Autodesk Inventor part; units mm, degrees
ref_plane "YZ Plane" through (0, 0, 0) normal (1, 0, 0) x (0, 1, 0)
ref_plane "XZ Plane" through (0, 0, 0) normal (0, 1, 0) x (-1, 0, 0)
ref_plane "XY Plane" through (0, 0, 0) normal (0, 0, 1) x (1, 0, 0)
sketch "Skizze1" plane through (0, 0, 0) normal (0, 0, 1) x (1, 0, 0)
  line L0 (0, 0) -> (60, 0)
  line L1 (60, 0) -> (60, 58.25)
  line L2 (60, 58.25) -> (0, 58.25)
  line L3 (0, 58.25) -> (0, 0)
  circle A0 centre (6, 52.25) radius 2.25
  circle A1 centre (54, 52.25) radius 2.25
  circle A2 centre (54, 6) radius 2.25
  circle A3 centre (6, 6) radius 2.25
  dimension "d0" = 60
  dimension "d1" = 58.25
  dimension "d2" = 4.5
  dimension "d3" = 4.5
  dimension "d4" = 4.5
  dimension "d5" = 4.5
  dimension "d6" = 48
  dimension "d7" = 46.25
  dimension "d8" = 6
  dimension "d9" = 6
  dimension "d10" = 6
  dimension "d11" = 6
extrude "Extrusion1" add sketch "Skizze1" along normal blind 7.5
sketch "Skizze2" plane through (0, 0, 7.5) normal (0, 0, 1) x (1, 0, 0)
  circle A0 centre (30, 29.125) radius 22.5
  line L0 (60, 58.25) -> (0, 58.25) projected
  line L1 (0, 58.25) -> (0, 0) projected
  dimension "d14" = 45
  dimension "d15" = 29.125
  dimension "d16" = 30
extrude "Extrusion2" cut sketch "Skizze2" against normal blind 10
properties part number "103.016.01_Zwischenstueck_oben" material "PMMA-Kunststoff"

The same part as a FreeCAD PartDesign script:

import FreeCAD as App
import Part
import Sketcher

V = App.Vector
Q = App.Units.Quantity

doc = App.newDocument("Part")
body = doc.addObject("PartDesign::Body", "Body")

# Sketch on XY plane
sketch1 = body.newObject("Sketcher::SketchObject", "Sketch")
sketch1.AttachmentSupport = (doc.getObject("XY_Plane"), [""])
sketch1.MapMode = "FlatFace"
sketch1.addGeometry(Part.LineSegment(V(0, 58.2, 0), V(0, 0, 0)), False)
sketch1.addGeometry(Part.LineSegment(V(0, 0, 0), V(60, 0, 0)), False)
sketch1.addGeometry(Part.LineSegment(V(60, 0, 0), V(60, 58.2, 0)), False)
sketch1.addGeometry(Part.LineSegment(V(60, 58.2, 0), V(0, 58.2, 0)), False)
sketch1.addGeometry(Part.Circle(V(6, 6, 0), V(0, 0, 1), 2.2), False)
sketch1.addGeometry(Part.Circle(V(54, 6, 0), V(0, 0, 1), 2.2), False)
sketch1.addGeometry(Part.Circle(V(6, 52.2, 0), V(0, 0, 1), 2.2), False)
sketch1.addGeometry(Part.Circle(V(54, 52.2, 0), V(0, 0, 1), 2.2), False)
sketch1.addConstraint(Sketcher.Constraint("Coincident", 0, 2, 1, 1))
sketch1.addConstraint(Sketcher.Constraint("Coincident", 1, 2, 2, 1))
sketch1.addConstraint(Sketcher.Constraint("Coincident", 2, 2, 3, 1))
sketch1.addConstraint(Sketcher.Constraint("Coincident", 3, 2, 0, 1))
sketch1.addConstraint(Sketcher.Constraint("Vertical", 0))
sketch1.addConstraint(Sketcher.Constraint("Horizontal", 1))
sketch1.addConstraint(Sketcher.Constraint("Vertical", 2))
sketch1.addConstraint(Sketcher.Constraint("Horizontal", 3))
sketch1.addConstraint(Sketcher.Constraint("Coincident", 0, 2, -1, 1))
sketch1.addConstraint(Sketcher.Constraint("Equal", 4, 5))
sketch1.addConstraint(Sketcher.Constraint("Equal", 5, 6))
sketch1.addConstraint(Sketcher.Constraint("Equal", 6, 7))
sketch1.addConstraint(Sketcher.Constraint("Horizontal", 4, 3, 5, 3))
sketch1.addConstraint(Sketcher.Constraint("Horizontal", 6, 3, 7, 3))
sketch1.addConstraint(Sketcher.Constraint("Vertical", 4, 3, 6, 3))
sketch1.addConstraint(Sketcher.Constraint("Vertical", 5, 3, 7, 3))
sketch1.addConstraint(Sketcher.Constraint("Diameter", 4, Q("4.5 mm")))
sketch1.addConstraint(Sketcher.Constraint("DistanceX", 1, 1, 1, 2, Q("60 mm")))
sketch1.addConstraint(Sketcher.Constraint("DistanceX", -1, 1, 4, 3, Q("6 mm")))
sketch1.addConstraint(Sketcher.Constraint("DistanceY", -1, 1, 4, 3, Q("6 mm")))
sketch1.addConstraint(Sketcher.Constraint("DistanceX", 4, 3, 5, 3, Q("48 mm")))
sketch1.addConstraint(Sketcher.Constraint("DistanceY", 7, 3, 2, 2, Q("6 mm")))
sketch1.addConstraint(Sketcher.Constraint("DistanceY", 0, 2, 0, 1, Q("58.25 mm")))
pad1 = body.newObject("PartDesign::Pad", "Pad")
pad1.Profile = sketch1
pad1.Length = 7.5

# Sketch on XY plane
sketch2 = body.newObject("Sketcher::SketchObject", "Sketch001")
sketch2.AttachmentSupport = (doc.getObject("XY_Plane"), [""])
sketch2.MapMode = "FlatFace"
sketch2.AttachmentOffset = App.Placement(V(0, 0, 7.5), App.Rotation())
sketch2.addGeometry(Part.Circle(V(30, 29, 0), V(0, 0, 1), 22), False)
sketch2.addConstraint(Sketcher.Constraint("Diameter", 0, Q("45 mm")))
sketch2.addConstraint(Sketcher.Constraint("DistanceX", -1, 1, 0, 3, Q("30 mm")))
sketch2.addConstraint(Sketcher.Constraint("DistanceY", -1, 1, 0, 3, Q("29.125 mm")))
pocket1 = body.newObject("PartDesign::Pocket", "Pocket")
pocket1.Profile = sketch2
pocket1.Length = 10

doc.recompute()
